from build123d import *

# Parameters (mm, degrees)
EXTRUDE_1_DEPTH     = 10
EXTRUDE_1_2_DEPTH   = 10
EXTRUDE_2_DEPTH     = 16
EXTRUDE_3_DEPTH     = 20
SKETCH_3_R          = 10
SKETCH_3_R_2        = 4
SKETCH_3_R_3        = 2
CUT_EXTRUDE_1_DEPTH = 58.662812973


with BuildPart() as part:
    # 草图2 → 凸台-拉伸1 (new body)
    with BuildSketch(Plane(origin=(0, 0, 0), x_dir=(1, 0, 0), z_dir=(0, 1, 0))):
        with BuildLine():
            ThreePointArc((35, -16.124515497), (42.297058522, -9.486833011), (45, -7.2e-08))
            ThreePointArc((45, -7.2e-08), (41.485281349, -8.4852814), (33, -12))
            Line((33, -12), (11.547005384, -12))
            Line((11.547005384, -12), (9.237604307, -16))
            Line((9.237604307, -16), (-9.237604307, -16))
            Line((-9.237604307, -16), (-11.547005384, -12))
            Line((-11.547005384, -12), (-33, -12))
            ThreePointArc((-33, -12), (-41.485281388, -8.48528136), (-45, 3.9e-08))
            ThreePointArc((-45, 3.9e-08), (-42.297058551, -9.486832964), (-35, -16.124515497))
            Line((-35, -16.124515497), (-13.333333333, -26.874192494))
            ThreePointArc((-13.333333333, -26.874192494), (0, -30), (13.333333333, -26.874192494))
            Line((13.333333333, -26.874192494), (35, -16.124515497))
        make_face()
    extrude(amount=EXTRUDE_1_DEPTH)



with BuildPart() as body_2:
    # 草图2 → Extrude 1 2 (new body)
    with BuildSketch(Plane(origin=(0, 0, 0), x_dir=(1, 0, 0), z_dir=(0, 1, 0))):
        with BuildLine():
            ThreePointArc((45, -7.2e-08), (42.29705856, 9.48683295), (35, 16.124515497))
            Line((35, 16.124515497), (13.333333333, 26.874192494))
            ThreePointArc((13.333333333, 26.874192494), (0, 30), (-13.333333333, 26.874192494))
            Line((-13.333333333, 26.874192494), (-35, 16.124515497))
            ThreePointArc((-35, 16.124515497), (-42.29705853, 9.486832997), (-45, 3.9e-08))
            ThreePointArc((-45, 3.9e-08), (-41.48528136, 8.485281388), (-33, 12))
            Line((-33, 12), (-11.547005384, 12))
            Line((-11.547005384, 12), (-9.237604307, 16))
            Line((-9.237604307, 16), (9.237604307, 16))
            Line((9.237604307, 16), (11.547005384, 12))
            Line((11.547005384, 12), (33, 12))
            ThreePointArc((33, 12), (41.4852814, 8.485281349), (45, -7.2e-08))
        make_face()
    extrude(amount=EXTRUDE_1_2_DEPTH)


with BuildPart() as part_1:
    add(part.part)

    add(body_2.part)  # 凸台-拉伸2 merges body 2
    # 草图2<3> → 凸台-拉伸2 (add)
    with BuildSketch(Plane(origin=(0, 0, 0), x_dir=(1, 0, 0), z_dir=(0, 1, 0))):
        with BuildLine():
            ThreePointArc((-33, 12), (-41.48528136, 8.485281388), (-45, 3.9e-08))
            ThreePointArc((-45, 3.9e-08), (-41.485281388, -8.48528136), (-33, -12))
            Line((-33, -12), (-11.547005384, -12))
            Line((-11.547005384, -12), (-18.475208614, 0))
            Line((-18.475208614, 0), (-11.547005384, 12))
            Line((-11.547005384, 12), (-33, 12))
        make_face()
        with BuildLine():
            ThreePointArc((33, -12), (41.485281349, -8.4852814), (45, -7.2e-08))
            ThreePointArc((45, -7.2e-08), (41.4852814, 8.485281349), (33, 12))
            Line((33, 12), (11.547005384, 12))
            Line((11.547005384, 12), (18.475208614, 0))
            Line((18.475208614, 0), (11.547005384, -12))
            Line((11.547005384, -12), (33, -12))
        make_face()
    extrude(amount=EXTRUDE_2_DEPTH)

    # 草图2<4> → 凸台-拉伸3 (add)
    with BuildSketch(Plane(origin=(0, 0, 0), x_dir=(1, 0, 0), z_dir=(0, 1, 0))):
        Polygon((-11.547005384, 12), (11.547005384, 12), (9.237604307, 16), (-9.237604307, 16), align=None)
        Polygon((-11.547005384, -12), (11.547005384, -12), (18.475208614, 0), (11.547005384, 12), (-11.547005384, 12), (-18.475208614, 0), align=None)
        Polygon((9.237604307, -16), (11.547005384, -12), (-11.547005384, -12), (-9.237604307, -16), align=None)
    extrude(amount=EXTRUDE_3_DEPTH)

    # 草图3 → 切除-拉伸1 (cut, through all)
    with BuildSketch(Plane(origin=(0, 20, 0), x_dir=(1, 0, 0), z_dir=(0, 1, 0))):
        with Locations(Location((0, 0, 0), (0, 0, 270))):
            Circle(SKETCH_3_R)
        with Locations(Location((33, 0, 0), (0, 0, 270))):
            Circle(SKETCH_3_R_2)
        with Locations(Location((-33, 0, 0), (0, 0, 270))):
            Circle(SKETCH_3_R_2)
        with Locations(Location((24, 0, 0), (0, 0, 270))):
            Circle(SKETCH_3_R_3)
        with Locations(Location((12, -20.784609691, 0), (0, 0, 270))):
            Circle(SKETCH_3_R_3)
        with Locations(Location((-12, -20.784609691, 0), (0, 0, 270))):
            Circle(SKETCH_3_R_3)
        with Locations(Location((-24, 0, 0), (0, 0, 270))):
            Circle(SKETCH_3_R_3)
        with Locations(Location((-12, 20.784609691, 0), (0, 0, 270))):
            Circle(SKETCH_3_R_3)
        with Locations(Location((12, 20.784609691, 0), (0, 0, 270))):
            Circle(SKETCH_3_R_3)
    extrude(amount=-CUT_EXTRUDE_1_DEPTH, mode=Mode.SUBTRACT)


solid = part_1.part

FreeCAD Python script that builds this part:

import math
import FreeCAD as App
import Part
import Sketcher
from FreeCAD import Vector
Q = App.Units.Quantity


def add_polygon(sketch, points):
    """Adds a closed chain of lines whose ends are joined by coincident constraints."""
    first, n = sketch.GeometryCount, len(points)
    for a, b in zip(points, points[1:] + points[:1]):
        sketch.addGeometry(Part.LineSegment(App.Vector(*a, 0), App.Vector(*b, 0)), False)
    for i in range(n):
        sketch.addConstraint(Sketcher.Constraint("Coincident", first + i, 2, first + (i + 1) % n, 1))

doc = App.newDocument("Part")
params = doc.addObject("Spreadsheet::Sheet", "Params")
for row, (alias, value) in enumerate([
    ("sketch1_radius", "18 mm"),
    ("sketch1_radius2", "12 mm"),
    ("sketch1_radius3", "30 mm"),
    ("pad1_length", "10 mm"),
    ("sketch2_radius", "18 mm"),
    ("sketch2_radius2", "30 mm"),
    ("sketch2_radius3", "12 mm"),
    ("pad2_length", "10 mm"),
    ("sketch3_radius", "12 mm"),
    ("pad3_length", "16 mm"),
    ("pad4_length", "20 mm"),
    ("sketch5_diameter", "20 mm"),
    ("sketch5_diameter2", "8 mm"),
    ("sketch5_diameter3", "4 mm"),
], start=1):
    params.set(f"A{row}", alias)
    params.set(f"B{row}", "=" + value)
    params.setAlias(f"B{row}", alias)

body = doc.addObject("PartDesign::Body", "Body")

sketch1 = doc.addObject("Sketcher::SketchObject", "Sketch")
body.addObject(sketch1)
sketch1.AttachmentSupport = (doc.XZ_Plane, [""])
sketch1.MapMode = "FlatFace"
sketch1.addGeometry(Part.ArcOfCircle(Part.Circle(Vector(27, 0, 0), Vector(0, 0, 1), 18), math.radians(0), math.radians(63.6122)), False)
sketch1.addGeometry(Part.ArcOfCircle(Part.Circle(Vector(33, 0, 0), Vector(0, 0, 1), 12), math.radians(0), math.radians(90)), False)
sketch1.addGeometry(Part.LineSegment(Vector(33, 12, 0), Vector(11.547005, 12, 0)), False)
sketch1.addGeometry(Part.LineSegment(Vector(11.547005, 12, 0), Vector(9.237604, 16, 0)), False)
sketch1.addGeometry(Part.LineSegment(Vector(9.237604, 16, 0), Vector(-9.237604, 16, 0)), False)
sketch1.addGeometry(Part.LineSegment(Vector(-9.237604, 16, 0), Vector(-11.547005, 12, 0)), False)
sketch1.addGeometry(Part.LineSegment(Vector(-11.547005, 12, 0), Vector(-33, 12, 0)), False)
sketch1.addGeometry(Part.ArcOfCircle(Part.Circle(Vector(-33, 0, 0), Vector(0, 0, 1), 12), math.radians(90), math.radians(180)), False)
sketch1.addGeometry(Part.ArcOfCircle(Part.Circle(Vector(-27, 0, 0), Vector(0, 0, 1), 18), math.radians(116.3878), math.radians(180)), False)
sketch1.addGeometry(Part.LineSegment(Vector(-35, 16.124515, 0), Vector(-13.333333, 26.874192, 0)), False)
sketch1.addGeometry(Part.ArcOfCircle(Part.Circle(Vector(0, 0, 0), Vector(0, 0, 1), 30), math.radians(63.6122), math.radians(116.3878)), False)
sketch1.addGeometry(Part.LineSegment(Vector(13.333333, 26.874192, 0), Vector(35, 16.124515, 0)), False)
sketch1.addConstraint(Sketcher.Constraint("Tangent", 0, 1, 1, 1))
sketch1.addConstraint(Sketcher.Constraint("Tangent", 1, 2, 2, 1))
sketch1.addConstraint(Sketcher.Constraint("Coincident", 2, 2, 3, 1))
sketch1.addConstraint(Sketcher.Constraint("Coincident", 3, 2, 4, 1))
sketch1.addConstraint(Sketcher.Constraint("Coincident", 4, 2, 5, 1))
sketch1.addConstraint(Sketcher.Constraint("Coincident", 5, 2, 6, 1))
sketch1.addConstraint(Sketcher.Constraint("Tangent", 6, 2, 7, 1))
sketch1.addConstraint(Sketcher.Constraint("Tangent", 7, 2, 8, 2))
sketch1.addConstraint(Sketcher.Constraint("Tangent", 8, 1, 9, 1))
sketch1.addConstraint(Sketcher.Constraint("Tangent", 9, 2, 10, 2))
sketch1.addConstraint(Sketcher.Constraint("Tangent", 10, 1, 11, 1))
sketch1.addConstraint(Sketcher.Constraint("Tangent", 11, 2, 0, 2))
sketch1.addConstraint(Sketcher.Constraint("Horizontal", 2))
sketch1.addConstraint(Sketcher.Constraint("Horizontal", 4))
sketch1.addConstraint(Sketcher.Constraint("Horizontal", 6))
sketch1.addConstraint(Sketcher.Constraint("Coincident", 10, 3, -1, 1))
sketch1.addConstraint(Sketcher.Constraint("Equal", 1, 7))
sketch1.addConstraint(Sketcher.Constraint("Equal", 0, 8))
sketch1.addConstraint(Sketcher.Constraint("Symmetric", 1, 3, 7, 3, -1, 1))
sketch1.addConstraint(Sketcher.Constraint("Symmetric", 2, 2, 5, 2, -2))
sketch1.addConstraint(Sketcher.Constraint("PointOnObject", 0, 3, -1))
sketch1.addConstraint(Sketcher.Constraint("PointOnObject", 8, 3, -1))
sketch1.addConstraint(Sketcher.Constraint("Equal", 3, 5))
sketch1.addConstraint(Sketcher.Constraint("Radius", 0, 18.0))
sketch1.addConstraint(Sketcher.Constraint("Radius", 1, 12.0))
sketch1.addConstraint(Sketcher.Constraint("Radius", 10, 30.0))
sketch1.addConstraint(Sketcher.Constraint("Angle", 3, Q("120 deg")))
sketch1.addConstraint(Sketcher.Constraint("DistanceX", -1, 1, 0, 3, 27.0))
sketch1.addConstraint(Sketcher.Constraint("DistanceY", -1, 1, 3, 2, 16.0))
sketch1.addConstraint(Sketcher.Constraint("DistanceX", 4, 2, 4, 1, 18.475209))
sketch1.setExpression("Constraints[23]", "Params.sketch1_radius")
sketch1.setExpression("Constraints[24]", "Params.sketch1_radius2")
sketch1.setExpression("Constraints[25]", "Params.sketch1_radius3")
pad1 = doc.addObject("PartDesign::Pad", "Pad")
body.addObject(pad1)
pad1.Profile = sketch1
pad1.setExpression("Length", "Params.pad1_length")
pad1.Reversed = True
body2 = doc.addObject("PartDesign::Body", "Body001")

sketch2 = doc.addObject("Sketcher::SketchObject", "Sketch001")
body2.addObject(sketch2)
sketch2.AttachmentSupport = (doc.getObject("XZ_Plane001"), [""])
sketch2.MapMode = "FlatFace"
sketch2.addGeometry(Part.ArcOfCircle(Part.Circle(Vector(27, 0, 0), Vector(0, 0, 1), 18), math.radians(-63.6122), math.radians(0)), False)
sketch2.addGeometry(Part.LineSegment(Vector(35, -16.124515, 0), Vector(13.333333, -26.874192, 0)), False)
sketch2.addGeometry(Part.ArcOfCircle(Part.Circle(Vector(0, 0, 0), Vector(0, 0, 1), 30), math.radians(-116.3878), math.radians(-63.6122)), False)
sketch2.addGeometry(Part.LineSegment(Vector(-13.333333, -26.874192, 0), Vector(-35, -16.124515, 0)), False)
sketch2.addGeometry(Part.ArcOfCircle(Part.Circle(Vector(-27, 0, 0), Vector(0, 0, 1), 18), math.radians(-180), math.radians(-116.3878)), False)
sketch2.addGeometry(Part.ArcOfCircle(Part.Circle(Vector(-33, 0, 0), Vector(0, 0, 1), 12), math.radians(-180), math.radians(-90)), False)
sketch2.addGeometry(Part.LineSegment(Vector(-33, -12, 0), Vector(-11.547005, -12, 0)), False)
sketch2.addGeometry(Part.LineSegment(Vector(-11.547005, -12, 0), Vector(-9.237604, -16, 0)), False)
sketch2.addGeometry(Part.LineSegment(Vector(-9.237604, -16, 0), Vector(9.237604, -16, 0)), False)
sketch2.addGeometry(Part.LineSegment(Vector(9.237604, -16, 0), Vector(11.547005, -12, 0)), False)
sketch2.addGeometry(Part.LineSegment(Vector(11.547005, -12, 0), Vector(33, -12, 0)), False)
sketch2.addGeometry(Part.ArcOfCircle(Part.Circle(Vector(33, 0, 0), Vector(0, 0, 1), 12), math.radians(-90), math.radians(0)), False)
sketch2.addConstraint(Sketcher.Constraint("Tangent", 0, 1, 1, 1))
sketch2.addConstraint(Sketcher.Constraint("Tangent", 1, 2, 2, 2))
sketch2.addConstraint(Sketcher.Constraint("Tangent", 2, 1, 3, 1))
sketch2.addConstraint(Sketcher.Constraint("Tangent", 3, 2, 4, 2))
sketch2.addConstraint(Sketcher.Constraint("Tangent", 4, 1, 5, 1))
sketch2.addConstraint(Sketcher.Constraint("Tangent", 5, 2, 6, 1))
sketch2.addConstraint(Sketcher.Constraint("Coincident", 6, 2, 7, 1))
sketch2.addConstraint(Sketcher.Constraint("Coincident", 7, 2, 8, 1))
sketch2.addConstraint(Sketcher.Constraint("Coincident", 8, 2, 9, 1))
sketch2.addConstraint(Sketcher.Constraint("Coincident", 9, 2, 10, 1))
sketch2.addConstraint(Sketcher.Constraint("Tangent", 10, 2, 11, 1))
sketch2.addConstraint(Sketcher.Constraint("Tangent", 11, 2, 0, 2))
sketch2.addConstraint(Sketcher.Constraint("Horizontal", 6))
sketch2.addConstraint(Sketcher.Constraint("Horizontal", 8))
sketch2.addConstraint(Sketcher.Constraint("Horizontal", 10))
sketch2.addConstraint(Sketcher.Constraint("Coincident", 2, 3, -1, 1))
sketch2.addConstraint(Sketcher.Constraint("Equal", 0, 4))
sketch2.addConstraint(Sketcher.Constraint("Equal", 5, 11))
sketch2.addConstraint(Sketcher.Constraint("Symmetric", 0, 3, 4, 3, -1, 1))
sketch2.addConstraint(Sketcher.Constraint("Symmetric", 6, 2, 9, 2, -2))
sketch2.addConstraint(Sketcher.Constraint("PointOnObject", 0, 3, -1))
sketch2.addConstraint(Sketcher.Constraint("PointOnObject", 5, 3, -1))
sketch2.addConstraint(Sketcher.Constraint("Equal", 7, 9))
sketch2.addConstraint(Sketcher.Constraint("Radius", 0, 18.0))
sketch2.addConstraint(Sketcher.Constraint("Radius", 2, 30.0))
sketch2.addConstraint(Sketcher.Constraint("Radius", 5, 12.0))
sketch2.addConstraint(Sketcher.Constraint("Angle", 7, Q("-60 deg")))
sketch2.addConstraint(Sketcher.Constraint("DistanceX", -1, 1, 0, 3, 27.0))
sketch2.addConstraint(Sketcher.Constraint("DistanceY", 7, 2, -1, 1, 16.0))
sketch2.addConstraint(Sketcher.Constraint("DistanceX", 8, 1, 8, 2, 18.475209))
sketch2.setExpression("Constraints[23]", "Params.sketch2_radius")
sketch2.setExpression("Constraints[24]", "Params.sketch2_radius2")
sketch2.setExpression("Constraints[25]", "Params.sketch2_radius3")
pad2 = doc.addObject("PartDesign::Pad", "Pad001")
body2.addObject(pad2)
pad2.Profile = sketch2
pad2.setExpression("Length", "Params.pad2_length")
pad2.Reversed = True
body.AllowCompound = True
doc.recompute()

boolean = doc.addObject("PartDesign::Boolean", "Boolean")
body.addObject(boolean)
boolean.Type = "Fuse"
boolean.addObjects([body2])

sketch3 = doc.addObject("Sketcher::SketchObject", "Sketch002")
body.addObject(sketch3)
sketch3.AttachmentSupport = (doc.XZ_Plane, [""])
sketch3.MapMode = "FlatFace"
sketch3.addGeometry(Part.ArcOfCircle(Part.Circle(Vector(-33, 0, 0), Vector(0, 0, 1), 12), math.radians(-180), math.radians(-90)), False)
sketch3.addGeometry(Part.ArcOfCircle(Part.Circle(Vector(-33, 0, 0), Vector(0, 0, 1), 12), math.radians(90), math.radians(180)), False)
sketch3.addGeometry(Part.LineSegment(Vector(-33, 12, 0), Vector(-11.547005, 12, 0)), False)
sketch3.addGeometry(Part.LineSegment(Vector(-11.547005, 12, 0), Vector(-18.475209, 0, 0)), False)
sketch3.addGeometry(Part.LineSegment(Vector(-18.475209, 0, 0), Vector(-11.547005, -12, 0)), False)
sketch3.addGeometry(Part.LineSegment(Vector(-11.547005, -12, 0), Vector(-33, -12, 0)), False)
sketch3.addGeometry(Part.ArcOfCircle(Part.Circle(Vector(33, 0, 0), Vector(0, 0, 1), 12), math.radians(0), math.radians(90)), False)
sketch3.addGeometry(Part.ArcOfCircle(Part.Circle(Vector(33, 0, 0), Vector(0, 0, 1), 12), math.radians(-90), math.radians(0)), False)
sketch3.addGeometry(Part.LineSegment(Vector(33, -12, 0), Vector(11.547005, -12, 0)), False)
sketch3.addGeometry(Part.LineSegment(Vector(11.547005, -12, 0), Vector(18.475209, 0, 0)), False)
sketch3.addGeometry(Part.LineSegment(Vector(18.475209, 0, 0), Vector(11.547005, 12, 0)), False)
sketch3.addGeometry(Part.LineSegment(Vector(11.547005, 12, 0), Vector(33, 12, 0)), False)
sketch3.addConstraint(Sketcher.Constraint("Tangent", 0, 1, 1, 2))
sketch3.addConstraint(Sketcher.Constraint("Tangent", 1, 1, 2, 1))
sketch3.addConstraint(Sketcher.Constraint("Coincident", 2, 2, 3, 1))
sketch3.addConstraint(Sketcher.Constraint("Coincident", 3, 2, 4, 1))
sketch3.addConstraint(Sketcher.Constraint("Coincident", 4, 2, 5, 1))
sketch3.addConstraint(Sketcher.Constraint("Tangent", 5, 2, 0, 2))
sketch3.addConstraint(Sketcher.Constraint("Tangent", 6, 1, 7, 2))
sketch3.addConstraint(Sketcher.Constraint("Tangent", 7, 1, 8, 1))
sketch3.addConstraint(Sketcher.Constraint("Coincident", 8, 2, 9, 1))
sketch3.addConstraint(Sketcher.Constraint("Coincident", 9, 2, 10, 1))
sketch3.addConstraint(Sketcher.Constraint("Coincident", 10, 2, 11, 1))
sketch3.addConstraint(Sketcher.Constraint("Tangent", 11, 2, 6, 2))
sketch3.addConstraint(Sketcher.Constraint("Horizontal", 2))
sketch3.addConstraint(Sketcher.Constraint("Horizontal", 5))
sketch3.addConstraint(Sketcher.Constraint("Horizontal", 8))
sketch3.addConstraint(Sketcher.Constraint("Horizontal", 11))
sketch3.addConstraint(Sketcher.Constraint("Equal", 0, 1))
sketch3.addConstraint(Sketcher.Constraint("Equal", 1, 6))
sketch3.addConstraint(Sketcher.Constraint("Equal", 6, 7))
sketch3.addConstraint(Sketcher.Constraint("Symmetric", 0, 3, 6, 3, -1, 1))
sketch3.addConstraint(Sketcher.Constraint("Symmetric", 3, 2, 9, 2, -1, 1))
sketch3.addConstraint(Sketcher.Constraint("Symmetric", 4, 2, 8, 2, -2))
sketch3.addConstraint(Sketcher.Constraint("PointOnObject", 0, 1, -1))
sketch3.addConstraint(Sketcher.Constraint("PointOnObject", 3, 2, -1))
sketch3.addConstraint(Sketcher.Constraint("PointOnObject", 6, 1, -1))
sketch3.addConstraint(Sketcher.Constraint("Parallel", 3, 9))
sketch3.addConstraint(Sketcher.Constraint("Parallel", 4, 10))
sketch3.addConstraint(Sketcher.Constraint("Radius", 0, 12.0))
sketch3.addConstraint(Sketcher.Constraint("Angle", 3, Q("-120 deg")))
sketch3.addConstraint(Sketcher.Constraint("DistanceX", 0, 3, -1, 1, 33.0))
sketch3.addConstraint(Sketcher.Constraint("DistanceX", 2, 1, 2, 2, 21.452995))
sketch3.setExpression("Constraints[27]", "Params.sketch3_radius")
pad3 = doc.addObject("PartDesign::Pad", "Pad002")
body.addObject(pad3)
pad3.Profile = sketch3
pad3.setExpression("Length", "Params.pad3_length")
pad3.Reversed = True

sketch4 = doc.addObject("Sketcher::SketchObject", "Sketch003")
body.addObject(sketch4)
sketch4.AttachmentSupport = (doc.XZ_Plane, [""])
sketch4.MapMode = "FlatFace"
add_polygon(sketch4, [(11.547005, -12), (9.237604, -16), (-9.237604, -16), (-11.547005, -12), (-18.475209, 0), (-11.547005, 12), (-9.237604, 16), (9.237604, 16), (11.547005, 12), (18.475209, 0)])
sketch4.addConstraint(Sketcher.Constraint("Horizontal", 1))
sketch4.addConstraint(Sketcher.Constraint("Horizontal", 6))
sketch4.addConstraint(Sketcher.Constraint("Symmetric", 0, 2, 5, 2, -1, 1))
sketch4.addConstraint(Sketcher.Constraint("Symmetric", 2, 2, 7, 2, -1, 1))
sketch4.addConstraint(Sketcher.Constraint("Symmetric", 3, 2, 8, 2, -1, 1))
sketch4.addConstraint(Sketcher.Constraint("Symmetric", 4, 2, 9, 2, -1, 1))
sketch4.addConstraint(Sketcher.Constraint("Symmetric", 4, 2, 7, 2, -2))
sketch4.addConstraint(Sketcher.Constraint("PointOnObject", 3, 2, -1))
sketch4.addConstraint(Sketcher.Constraint("Parallel", 2, 3))
sketch4.addConstraint(Sketcher.Constraint("Parallel", 0, 4))
sketch4.addConstraint(Sketcher.Constraint("Parallel", 3, 7))
sketch4.addConstraint(Sketcher.Constraint("Angle", 0, Q("-120 deg")))
sketch4.addConstraint(Sketcher.Constraint("DistanceY", 0, 2, -1, 1, 16.0))
sketch4.addConstraint(Sketcher.Constraint("DistanceY", 2, 2, -1, 1, 12.0))
sketch4.addConstraint(Sketcher.Constraint("DistanceX", 1, 2, 1, 1, 18.475209))
pad4 = doc.addObject("PartDesign::Pad", "Pad003")
body.addObject(pad4)
pad4.Profile = sketch4
pad4.setExpression("Length", "Params.pad4_length")
pad4.Reversed = True

sketch5 = doc.addObject("Sketcher::SketchObject", "Sketch004")
body.addObject(sketch5)
sketch5.AttachmentSupport = (doc.XZ_Plane, [""])
sketch5.MapMode = "FlatFace"
sketch5.AttachmentOffset = App.Placement(Vector(0, 0, -20), App.Rotation())
sketch5.addGeometry(Part.Circle(Vector(0, 0, 0), Vector(0, 0, 1), 10), False)
sketch5.addGeometry(Part.Circle(Vector(33, 0, 0), Vector(0, 0, 1), 4), False)
sketch5.addGeometry(Part.Circle(Vector(-33, 0, 0), Vector(0, 0, 1), 4), False)
sketch5.addGeometry(Part.Circle(Vector(24, 0, 0), Vector(0, 0, 1), 2), False)
sketch5.addGeometry(Part.Circle(Vector(12, 20.78461, 0), Vector(0, 0, 1), 2), False)
sketch5.addGeometry(Part.Circle(Vector(-12, 20.78461, 0), Vector(0, 0, 1), 2), False)
sketch5.addGeometry(Part.Circle(Vector(-24, 0, 0), Vector(0, 0, 1), 2), False)
sketch5.addGeometry(Part.Circle(Vector(-12, -20.78461, 0), Vector(0, 0, 1), 2), False)
sketch5.addGeometry(Part.Circle(Vector(12, -20.78461, 0), Vector(0, 0, 1), 2), False)
sketch5.addConstraint(Sketcher.Constraint("Coincident", 0, 3, -1, 1))
sketch5.addConstraint(Sketcher.Constraint("Equal", 1, 2))
sketch5.addConstraint(Sketcher.Constraint("Equal", 3, 4))
sketch5.addConstraint(Sketcher.Constraint("Equal", 4, 5))
sketch5.addConstraint(Sketcher.Constraint("Equal", 5, 6))
sketch5.addConstraint(Sketcher.Constraint("Equal", 6, 7))
sketch5.addConstraint(Sketcher.Constraint("Equal", 7, 8))
sketch5.addConstraint(Sketcher.Constraint("Symmetric", 1, 3, 2, 3, -1, 1))
sketch5.addConstraint(Sketcher.Constraint("Symmetric", 3, 3, 6, 3, -1, 1))
sketch5.addConstraint(Sketcher.Constraint("Symmetric", 4, 3, 7, 3, -1, 1))
sketch5.addConstraint(Sketcher.Constraint("Symmetric", 5, 3, 8, 3, -1, 1))
sketch5.addConstraint(Sketcher.Constraint("Symmetric", 4, 3, 5, 3, -2))
sketch5.addConstraint(Sketcher.Constraint("PointOnObject", 1, 3, -1))
sketch5.addConstraint(Sketcher.Constraint("PointOnObject", 3, 3, -1))
sketch5.addConstraint(Sketcher.Constraint("Diameter", 0, 20.0))
sketch5.addConstraint(Sketcher.Constraint("Diameter", 1, 8.0))
sketch5.addConstraint(Sketcher.Constraint("Diameter", 3, 4.0))
sketch5.addConstraint(Sketcher.Constraint("DistanceX", -1, 1, 1, 3, 33.0))
sketch5.addConstraint(Sketcher.Constraint("DistanceX", -1, 1, 3, 3, 24.0))
sketch5.addConstraint(Sketcher.Constraint("DistanceX", -1, 1, 4, 3, 12.0))
sketch5.addConstraint(Sketcher.Constraint("DistanceY", -1, 1, 4, 3, 20.78461))
sketch5.setExpression("Constraints[14]", "Params.sketch5_diameter")
sketch5.setExpression("Constraints[15]", "Params.sketch5_diameter2")
sketch5.setExpression("Constraints[16]", "Params.sketch5_diameter3")
pocket1 = doc.addObject("PartDesign::Pocket", "Pocket")
body.addObject(pocket1)
pocket1.Profile = sketch5
pocket1.Type = "ThroughAll"
pocket1.Reversed = True

doc.recompute()
